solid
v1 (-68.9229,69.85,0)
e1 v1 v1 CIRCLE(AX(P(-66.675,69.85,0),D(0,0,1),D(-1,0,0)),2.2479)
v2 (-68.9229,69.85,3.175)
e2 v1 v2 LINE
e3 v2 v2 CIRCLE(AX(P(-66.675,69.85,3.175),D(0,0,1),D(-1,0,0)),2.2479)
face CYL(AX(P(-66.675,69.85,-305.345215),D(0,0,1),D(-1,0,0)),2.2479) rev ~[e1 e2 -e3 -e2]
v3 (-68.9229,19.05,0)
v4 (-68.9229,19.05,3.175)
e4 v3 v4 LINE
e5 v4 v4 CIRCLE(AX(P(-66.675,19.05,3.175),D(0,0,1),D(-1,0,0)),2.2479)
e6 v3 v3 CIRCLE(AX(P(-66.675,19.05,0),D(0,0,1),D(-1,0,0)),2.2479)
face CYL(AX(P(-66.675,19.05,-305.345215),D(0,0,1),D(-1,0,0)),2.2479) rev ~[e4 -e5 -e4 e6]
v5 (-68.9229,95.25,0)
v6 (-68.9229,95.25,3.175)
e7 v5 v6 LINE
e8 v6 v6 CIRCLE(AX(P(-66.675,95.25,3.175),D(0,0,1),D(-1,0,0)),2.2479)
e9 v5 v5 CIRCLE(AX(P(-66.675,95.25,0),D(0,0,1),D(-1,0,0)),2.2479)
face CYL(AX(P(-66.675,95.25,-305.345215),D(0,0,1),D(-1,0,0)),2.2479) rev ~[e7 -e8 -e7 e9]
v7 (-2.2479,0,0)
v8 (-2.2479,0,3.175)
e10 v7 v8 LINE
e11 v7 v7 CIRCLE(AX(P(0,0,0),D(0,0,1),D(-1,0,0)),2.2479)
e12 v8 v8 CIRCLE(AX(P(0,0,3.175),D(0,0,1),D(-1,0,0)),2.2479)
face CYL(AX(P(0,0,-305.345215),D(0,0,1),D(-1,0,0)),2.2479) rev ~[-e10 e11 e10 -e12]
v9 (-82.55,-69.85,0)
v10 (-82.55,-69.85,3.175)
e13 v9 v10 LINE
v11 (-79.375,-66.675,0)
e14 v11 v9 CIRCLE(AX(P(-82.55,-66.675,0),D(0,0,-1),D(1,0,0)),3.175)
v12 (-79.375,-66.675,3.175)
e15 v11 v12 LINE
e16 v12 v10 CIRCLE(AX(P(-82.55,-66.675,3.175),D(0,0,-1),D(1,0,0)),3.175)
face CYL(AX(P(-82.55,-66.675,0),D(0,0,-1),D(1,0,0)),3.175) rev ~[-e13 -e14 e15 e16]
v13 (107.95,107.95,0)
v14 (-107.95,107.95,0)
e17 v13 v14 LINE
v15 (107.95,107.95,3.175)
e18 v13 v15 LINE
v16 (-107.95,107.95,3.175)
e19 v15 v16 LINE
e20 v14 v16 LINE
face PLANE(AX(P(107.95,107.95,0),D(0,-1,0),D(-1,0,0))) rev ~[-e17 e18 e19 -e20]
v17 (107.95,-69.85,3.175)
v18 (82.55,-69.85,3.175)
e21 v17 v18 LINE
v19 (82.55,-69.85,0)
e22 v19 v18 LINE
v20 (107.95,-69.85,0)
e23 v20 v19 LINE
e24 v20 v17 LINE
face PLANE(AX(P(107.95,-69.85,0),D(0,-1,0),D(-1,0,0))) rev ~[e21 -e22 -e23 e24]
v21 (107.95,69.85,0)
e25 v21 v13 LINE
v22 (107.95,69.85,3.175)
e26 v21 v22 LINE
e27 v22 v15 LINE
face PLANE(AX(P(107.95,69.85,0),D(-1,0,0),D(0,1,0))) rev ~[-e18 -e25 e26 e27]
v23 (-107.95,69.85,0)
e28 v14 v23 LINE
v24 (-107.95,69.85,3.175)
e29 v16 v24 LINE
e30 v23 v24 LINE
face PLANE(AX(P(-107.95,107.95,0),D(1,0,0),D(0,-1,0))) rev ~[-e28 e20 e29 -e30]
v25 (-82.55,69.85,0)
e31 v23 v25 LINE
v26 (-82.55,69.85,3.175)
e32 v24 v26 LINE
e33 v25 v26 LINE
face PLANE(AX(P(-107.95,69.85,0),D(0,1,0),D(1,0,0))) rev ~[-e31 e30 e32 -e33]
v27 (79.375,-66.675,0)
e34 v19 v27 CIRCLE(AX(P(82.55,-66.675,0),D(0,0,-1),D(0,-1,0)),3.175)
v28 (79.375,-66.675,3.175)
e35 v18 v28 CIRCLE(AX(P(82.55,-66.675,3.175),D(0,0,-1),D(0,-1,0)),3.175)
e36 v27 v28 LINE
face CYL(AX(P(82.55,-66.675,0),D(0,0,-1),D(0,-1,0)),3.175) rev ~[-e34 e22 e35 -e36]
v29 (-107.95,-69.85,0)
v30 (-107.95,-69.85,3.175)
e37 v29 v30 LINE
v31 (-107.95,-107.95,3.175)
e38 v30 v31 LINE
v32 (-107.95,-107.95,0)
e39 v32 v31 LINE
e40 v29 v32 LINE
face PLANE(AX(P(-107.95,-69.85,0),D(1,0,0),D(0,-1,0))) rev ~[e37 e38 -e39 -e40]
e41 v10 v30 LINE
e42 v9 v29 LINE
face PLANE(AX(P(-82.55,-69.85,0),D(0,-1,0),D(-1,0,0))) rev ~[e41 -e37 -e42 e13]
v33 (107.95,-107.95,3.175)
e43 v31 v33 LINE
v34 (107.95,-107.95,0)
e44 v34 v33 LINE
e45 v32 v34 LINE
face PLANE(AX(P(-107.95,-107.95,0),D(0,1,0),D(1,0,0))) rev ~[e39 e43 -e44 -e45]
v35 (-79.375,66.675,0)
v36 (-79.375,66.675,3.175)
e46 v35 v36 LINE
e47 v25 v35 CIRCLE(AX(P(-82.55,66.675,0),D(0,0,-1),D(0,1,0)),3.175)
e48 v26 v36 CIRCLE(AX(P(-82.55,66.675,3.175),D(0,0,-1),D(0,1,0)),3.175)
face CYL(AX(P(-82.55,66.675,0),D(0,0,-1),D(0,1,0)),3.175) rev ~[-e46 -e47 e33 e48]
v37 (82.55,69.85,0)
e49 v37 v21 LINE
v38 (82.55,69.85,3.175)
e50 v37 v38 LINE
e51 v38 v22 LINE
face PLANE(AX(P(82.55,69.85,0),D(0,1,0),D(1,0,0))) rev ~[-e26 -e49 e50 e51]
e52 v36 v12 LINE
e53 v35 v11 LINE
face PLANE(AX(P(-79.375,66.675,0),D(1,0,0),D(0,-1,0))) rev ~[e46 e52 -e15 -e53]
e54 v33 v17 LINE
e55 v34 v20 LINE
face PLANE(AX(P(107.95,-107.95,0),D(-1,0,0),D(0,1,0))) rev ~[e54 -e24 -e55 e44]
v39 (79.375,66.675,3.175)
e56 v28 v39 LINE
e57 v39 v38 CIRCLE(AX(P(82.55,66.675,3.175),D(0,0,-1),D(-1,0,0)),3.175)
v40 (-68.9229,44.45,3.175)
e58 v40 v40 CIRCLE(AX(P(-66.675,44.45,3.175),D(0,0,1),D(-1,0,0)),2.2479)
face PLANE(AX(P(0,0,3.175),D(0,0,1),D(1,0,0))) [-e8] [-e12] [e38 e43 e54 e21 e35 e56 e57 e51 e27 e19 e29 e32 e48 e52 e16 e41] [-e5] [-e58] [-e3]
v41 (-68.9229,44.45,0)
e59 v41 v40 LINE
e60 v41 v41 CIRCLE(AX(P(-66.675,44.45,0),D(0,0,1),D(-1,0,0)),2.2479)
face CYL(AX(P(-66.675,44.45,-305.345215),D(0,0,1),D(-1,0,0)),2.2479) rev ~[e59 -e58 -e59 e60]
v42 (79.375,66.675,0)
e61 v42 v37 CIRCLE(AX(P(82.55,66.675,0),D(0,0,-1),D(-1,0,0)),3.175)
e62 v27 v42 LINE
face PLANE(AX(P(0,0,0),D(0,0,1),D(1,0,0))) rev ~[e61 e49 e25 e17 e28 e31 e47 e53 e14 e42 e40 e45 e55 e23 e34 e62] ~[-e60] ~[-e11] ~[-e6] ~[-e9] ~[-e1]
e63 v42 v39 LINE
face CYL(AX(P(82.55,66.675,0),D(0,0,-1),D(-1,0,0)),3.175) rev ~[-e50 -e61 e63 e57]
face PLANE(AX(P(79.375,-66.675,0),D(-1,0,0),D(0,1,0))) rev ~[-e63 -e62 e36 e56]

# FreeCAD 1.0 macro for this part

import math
import FreeCAD as App
import Part
import Sketcher

V = App.Vector
Q = App.Units.Quantity

doc = App.newDocument("Part")
body = doc.addObject("PartDesign::Body", "Body")

sketch1 = body.newObject("Sketcher::SketchObject", "Sketch")
sketch1.AttachmentSupport = (doc.getObject("XY_Plane"), [""])
sketch1.MapMode = "FlatFace"
sketch1.addGeometry(Part.LineSegment(V(-107.95, -69.85, 0), V(-107.95, -107.95, 0)), False)
sketch1.addGeometry(Part.LineSegment(V(-107.95, -107.95, 0), V(107.95, -107.95, 0)), False)
sketch1.addGeometry(Part.LineSegment(V(107.95, -107.95, 0), V(107.95, -69.85, 0)), False)
sketch1.addGeometry(Part.LineSegment(V(107.95, -69.85, 0), V(82.55, -69.85, 0)), False)
sketch1.addGeometry(Part.ArcOfCircle(Part.Circle(V(82.55, -66.675, 0), V(0, 0, 1), 3.175), math.radians(180), math.radians(270)), False)
sketch1.addGeometry(Part.LineSegment(V(79.375, -66.675, 0), V(79.375, 66.675, 0)), False)
sketch1.addGeometry(Part.ArcOfCircle(Part.Circle(V(82.55, 66.675, 0), V(0, 0, 1), 3.175), math.radians(90), math.radians(180)), False)
sketch1.addGeometry(Part.LineSegment(V(82.55, 69.85, 0), V(107.95, 69.85, 0)), False)
sketch1.addGeometry(Part.LineSegment(V(107.95, 69.85, 0), V(107.95, 107.95, 0)), False)
sketch1.addGeometry(Part.LineSegment(V(107.95, 107.95, 0), V(-107.95, 107.95, 0)), False)
sketch1.addGeometry(Part.LineSegment(V(-107.95, 107.95, 0), V(-107.95, 69.85, 0)), False)
sketch1.addGeometry(Part.LineSegment(V(-107.95, 69.85, 0), V(-82.55, 69.85, 0)), False)
sketch1.addGeometry(Part.ArcOfCircle(Part.Circle(V(-82.55, 66.675, 0), V(0, 0, 1), 3.175), math.radians(0), math.radians(90)), False)
sketch1.addGeometry(Part.LineSegment(V(-79.375, 66.675, 0), V(-79.375, -66.675, 0)), False)
sketch1.addGeometry(Part.ArcOfCircle(Part.Circle(V(-82.55, -66.675, 0), V(0, 0, 1), 3.175), math.radians(-90), math.radians(0)), False)
sketch1.addGeometry(Part.LineSegment(V(-82.55, -69.85, 0), V(-107.95, -69.85, 0)), False)
sketch1.addConstraint(Sketcher.Constraint("Coincident", 0, 2, 1, 1))
sketch1.addConstraint(Sketcher.Constraint("Coincident", 1, 2, 2, 1))
sketch1.addConstraint(Sketcher.Constraint("Coincident", 2, 2, 3, 1))
sketch1.addConstraint(Sketcher.Constraint("Tangent", 3, 2, 4, 2))
sketch1.addConstraint(Sketcher.Constraint("Tangent", 4, 1, 5, 1))
sketch1.addConstraint(Sketcher.Constraint("Tangent", 5, 2, 6, 2))
sketch1.addConstraint(Sketcher.Constraint("Tangent", 6, 1, 7, 1))
sketch1.addConstraint(Sketcher.Constraint("Coincident", 7, 2, 8, 1))
sketch1.addConstraint(Sketcher.Constraint("Coincident", 8, 2, 9, 1))
sketch1.addConstraint(Sketcher.Constraint("Coincident", 9, 2, 10, 1))
sketch1.addConstraint(Sketcher.Constraint("Coincident", 10, 2, 11, 1))
sketch1.addConstraint(Sketcher.Constraint("Tangent", 11, 2, 12, 2))
sketch1.addConstraint(Sketcher.Constraint("Tangent", 12, 1, 13, 1))
sketch1.addConstraint(Sketcher.Constraint("Tangent", 13, 2, 14, 2))
sketch1.addConstraint(Sketcher.Constraint("Tangent", 14, 1, 15, 1))
sketch1.addConstraint(Sketcher.Constraint("Coincident", 15, 2, 0, 1))
sketch1.addConstraint(Sketcher.Constraint("Vertical", 0))
sketch1.addConstraint(Sketcher.Constraint("Horizontal", 1))
sketch1.addConstraint(Sketcher.Constraint("Vertical", 2))
sketch1.addConstraint(Sketcher.Constraint("Horizontal", 3))
sketch1.addConstraint(Sketcher.Constraint("Vertical", 5))
sketch1.addConstraint(Sketcher.Constraint("Horizontal", 7))
sketch1.addConstraint(Sketcher.Constraint("Vertical", 8))
sketch1.addConstraint(Sketcher.Constraint("Horizontal", 9))
sketch1.addConstraint(Sketcher.Constraint("Vertical", 10))
sketch1.addConstraint(Sketcher.Constraint("Horizontal", 11))
sketch1.addConstraint(Sketcher.Constraint("Vertical", 13))
sketch1.addConstraint(Sketcher.Constraint("Horizontal", 15))
sketch1.addConstraint(Sketcher.Constraint("Equal", 4, 6))
sketch1.addConstraint(Sketcher.Constraint("Equal", 6, 12))
sketch1.addConstraint(Sketcher.Constraint("Equal", 12, 14))
sketch1.addConstraint(Sketcher.Constraint("Symmetric", 4, 3, 12, 3, -1, 1))
sketch1.addConstraint(Sketcher.Constraint("Symmetric", 0, 2, 8, 2, -1, 1))
sketch1.addConstraint(Sketcher.Constraint("Symmetric", 7, 2, 10, 2, -2))
sketch1.addConstraint(Sketcher.Constraint("Symmetric", 2, 2, 15, 2, -2))
sketch1.addConstraint(Sketcher.Constraint("DistanceX", 3, 2, 3, 1, Q("1 in")))
sketch1.addConstraint(Sketcher.Constraint("DistanceX", 1, 1, 1, 2, Q("8.5 in")))
sketch1.addConstraint(Sketcher.Constraint("DistanceY", 0, 2, 0, 1, Q("1.5 in")))
sketch1.addConstraint(Sketcher.Constraint("Radius", 4, Q("0.125 in")))
sketch1.addConstraint(Sketcher.Constraint("DistanceY", 0, 2, 10, 2, Q("7 in")))
pad1 = body.newObject("PartDesign::Pad", "Pad")
pad1.Profile = sketch1
pad1.Length = Q("0.125 in")

sketch2 = body.newObject("Sketcher::SketchObject", "Sketch001")
sketch2.AttachmentSupport = (doc.getObject("XY_Plane"), [""])
sketch2.MapMode = "FlatFace"
sketch2.addGeometry(Part.Circle(V(0, 0, 0), V(0, 0, 1), 2.2479), False)
sketch2.addConstraint(Sketcher.Constraint("Coincident", 0, 3, -1, 1))
sketch2.addConstraint(Sketcher.Constraint("Diameter", 0, Q("0.177 in")))
doc.recompute()
hole = body.newObject("PartDesign::Hole", "Hole")
hole.Profile = sketch2
hole.ThreadType = "None"
hole.Diameter = Q("0.177 in")
hole.DepthType = "ThroughAll"
hole.Reversed = True

sketch3 = body.newObject("Sketcher::SketchObject", "Sketch002")
sketch3.AttachmentSupport = (doc.getObject("XY_Plane"), [""])
sketch3.MapMode = "FlatFace"
sketch3.addGeometry(Part.Circle(V(-66.675, 95.25, 0), V(0, 0, 1), 2.2479), False)
sketch3.addConstraint(Sketcher.Constraint("Diameter", 0, Q("0.177 in")))
sketch3.addConstraint(Sketcher.Constraint("DistanceY", -1, 1, 0, 3, Q("3.75 in")))
sketch3.addConstraint(Sketcher.Constraint("DistanceX", 0, 3, -1, 1, Q("2.625 in")))
doc.recompute()
hole2 = body.newObject("PartDesign::Hole", "Hole001")
hole2.Profile = sketch3
hole2.ThreadType = "None"
hole2.Diameter = Q("0.177 in")
hole2.DepthType = "ThroughAll"
hole2.Reversed = True

sketch4 = body.newObject("Sketcher::SketchObject", "Sketch003")
sketch4.AttachmentSupport = (doc.getObject("XY_Plane"), [""])
sketch4.MapMode = "FlatFace"
sketch4.addGeometry(Part.Circle(V(-66.675, 69.85, 0), V(0, 0, 1), 2.2479), False)
sketch4.addConstraint(Sketcher.Constraint("Diameter", 0, Q("0.177 in")))
sketch4.addConstraint(Sketcher.Constraint("DistanceY", -1, 1, 0, 3, Q("2.75 in")))
sketch4.addConstraint(Sketcher.Constraint("DistanceX", 0, 3, -1, 1, Q("2.625 in")))
doc.recompute()
hole3 = body.newObject("PartDesign::Hole", "Hole002")
hole3.Profile = sketch4
hole3.ThreadType = "None"
hole3.Diameter = Q("0.177 in")
hole3.DepthType = "ThroughAll"
hole3.Reversed = True

sketch5 = body.newObject("Sketcher::SketchObject", "Sketch004")
sketch5.AttachmentSupport = (doc.getObject("XY_Plane"), [""])
sketch5.MapMode = "FlatFace"
sketch5.addGeometry(Part.Circle(V(-66.675, 44.45, 0), V(0, 0, 1), 2.2479), False)
sketch5.addConstraint(Sketcher.Constraint("Diameter", 0, Q("0.177 in")))
sketch5.addConstraint(Sketcher.Constraint("DistanceY", -1, 1, 0, 3, Q("1.75 in")))
sketch5.addConstraint(Sketcher.Constraint("DistanceX", 0, 3, -1, 1, Q("2.625 in")))
doc.recompute()
hole4 = body.newObject("PartDesign::Hole", "Hole003")
hole4.Profile = sketch5
hole4.ThreadType = "None"
hole4.Diameter = Q("0.177 in")
hole4.DepthType = "ThroughAll"
hole4.Reversed = True

sketch6 = body.newObject("Sketcher::SketchObject", "Sketch005")
sketch6.AttachmentSupport = (doc.getObject("XY_Plane"), [""])
sketch6.MapMode = "FlatFace"
sketch6.addGeometry(Part.Circle(V(-66.675, 19.05, 0), V(0, 0, 1), 2.2479), False)
sketch6.addConstraint(Sketcher.Constraint("Diameter", 0, Q("0.177 in")))
sketch6.addConstraint(Sketcher.Constraint("DistanceY", -1, 1, 0, 3, Q("0.75 in")))
sketch6.addConstraint(Sketcher.Constraint("DistanceX", 0, 3, -1, 1, Q("2.625 in")))
doc.recompute()
hole5 = body.newObject("PartDesign::Hole", "Hole004")
hole5.Profile = sketch6
hole5.ThreadType = "None"
hole5.Diameter = Q("0.177 in")
hole5.DepthType = "ThroughAll"
hole5.Reversed = True

doc.recompute()
